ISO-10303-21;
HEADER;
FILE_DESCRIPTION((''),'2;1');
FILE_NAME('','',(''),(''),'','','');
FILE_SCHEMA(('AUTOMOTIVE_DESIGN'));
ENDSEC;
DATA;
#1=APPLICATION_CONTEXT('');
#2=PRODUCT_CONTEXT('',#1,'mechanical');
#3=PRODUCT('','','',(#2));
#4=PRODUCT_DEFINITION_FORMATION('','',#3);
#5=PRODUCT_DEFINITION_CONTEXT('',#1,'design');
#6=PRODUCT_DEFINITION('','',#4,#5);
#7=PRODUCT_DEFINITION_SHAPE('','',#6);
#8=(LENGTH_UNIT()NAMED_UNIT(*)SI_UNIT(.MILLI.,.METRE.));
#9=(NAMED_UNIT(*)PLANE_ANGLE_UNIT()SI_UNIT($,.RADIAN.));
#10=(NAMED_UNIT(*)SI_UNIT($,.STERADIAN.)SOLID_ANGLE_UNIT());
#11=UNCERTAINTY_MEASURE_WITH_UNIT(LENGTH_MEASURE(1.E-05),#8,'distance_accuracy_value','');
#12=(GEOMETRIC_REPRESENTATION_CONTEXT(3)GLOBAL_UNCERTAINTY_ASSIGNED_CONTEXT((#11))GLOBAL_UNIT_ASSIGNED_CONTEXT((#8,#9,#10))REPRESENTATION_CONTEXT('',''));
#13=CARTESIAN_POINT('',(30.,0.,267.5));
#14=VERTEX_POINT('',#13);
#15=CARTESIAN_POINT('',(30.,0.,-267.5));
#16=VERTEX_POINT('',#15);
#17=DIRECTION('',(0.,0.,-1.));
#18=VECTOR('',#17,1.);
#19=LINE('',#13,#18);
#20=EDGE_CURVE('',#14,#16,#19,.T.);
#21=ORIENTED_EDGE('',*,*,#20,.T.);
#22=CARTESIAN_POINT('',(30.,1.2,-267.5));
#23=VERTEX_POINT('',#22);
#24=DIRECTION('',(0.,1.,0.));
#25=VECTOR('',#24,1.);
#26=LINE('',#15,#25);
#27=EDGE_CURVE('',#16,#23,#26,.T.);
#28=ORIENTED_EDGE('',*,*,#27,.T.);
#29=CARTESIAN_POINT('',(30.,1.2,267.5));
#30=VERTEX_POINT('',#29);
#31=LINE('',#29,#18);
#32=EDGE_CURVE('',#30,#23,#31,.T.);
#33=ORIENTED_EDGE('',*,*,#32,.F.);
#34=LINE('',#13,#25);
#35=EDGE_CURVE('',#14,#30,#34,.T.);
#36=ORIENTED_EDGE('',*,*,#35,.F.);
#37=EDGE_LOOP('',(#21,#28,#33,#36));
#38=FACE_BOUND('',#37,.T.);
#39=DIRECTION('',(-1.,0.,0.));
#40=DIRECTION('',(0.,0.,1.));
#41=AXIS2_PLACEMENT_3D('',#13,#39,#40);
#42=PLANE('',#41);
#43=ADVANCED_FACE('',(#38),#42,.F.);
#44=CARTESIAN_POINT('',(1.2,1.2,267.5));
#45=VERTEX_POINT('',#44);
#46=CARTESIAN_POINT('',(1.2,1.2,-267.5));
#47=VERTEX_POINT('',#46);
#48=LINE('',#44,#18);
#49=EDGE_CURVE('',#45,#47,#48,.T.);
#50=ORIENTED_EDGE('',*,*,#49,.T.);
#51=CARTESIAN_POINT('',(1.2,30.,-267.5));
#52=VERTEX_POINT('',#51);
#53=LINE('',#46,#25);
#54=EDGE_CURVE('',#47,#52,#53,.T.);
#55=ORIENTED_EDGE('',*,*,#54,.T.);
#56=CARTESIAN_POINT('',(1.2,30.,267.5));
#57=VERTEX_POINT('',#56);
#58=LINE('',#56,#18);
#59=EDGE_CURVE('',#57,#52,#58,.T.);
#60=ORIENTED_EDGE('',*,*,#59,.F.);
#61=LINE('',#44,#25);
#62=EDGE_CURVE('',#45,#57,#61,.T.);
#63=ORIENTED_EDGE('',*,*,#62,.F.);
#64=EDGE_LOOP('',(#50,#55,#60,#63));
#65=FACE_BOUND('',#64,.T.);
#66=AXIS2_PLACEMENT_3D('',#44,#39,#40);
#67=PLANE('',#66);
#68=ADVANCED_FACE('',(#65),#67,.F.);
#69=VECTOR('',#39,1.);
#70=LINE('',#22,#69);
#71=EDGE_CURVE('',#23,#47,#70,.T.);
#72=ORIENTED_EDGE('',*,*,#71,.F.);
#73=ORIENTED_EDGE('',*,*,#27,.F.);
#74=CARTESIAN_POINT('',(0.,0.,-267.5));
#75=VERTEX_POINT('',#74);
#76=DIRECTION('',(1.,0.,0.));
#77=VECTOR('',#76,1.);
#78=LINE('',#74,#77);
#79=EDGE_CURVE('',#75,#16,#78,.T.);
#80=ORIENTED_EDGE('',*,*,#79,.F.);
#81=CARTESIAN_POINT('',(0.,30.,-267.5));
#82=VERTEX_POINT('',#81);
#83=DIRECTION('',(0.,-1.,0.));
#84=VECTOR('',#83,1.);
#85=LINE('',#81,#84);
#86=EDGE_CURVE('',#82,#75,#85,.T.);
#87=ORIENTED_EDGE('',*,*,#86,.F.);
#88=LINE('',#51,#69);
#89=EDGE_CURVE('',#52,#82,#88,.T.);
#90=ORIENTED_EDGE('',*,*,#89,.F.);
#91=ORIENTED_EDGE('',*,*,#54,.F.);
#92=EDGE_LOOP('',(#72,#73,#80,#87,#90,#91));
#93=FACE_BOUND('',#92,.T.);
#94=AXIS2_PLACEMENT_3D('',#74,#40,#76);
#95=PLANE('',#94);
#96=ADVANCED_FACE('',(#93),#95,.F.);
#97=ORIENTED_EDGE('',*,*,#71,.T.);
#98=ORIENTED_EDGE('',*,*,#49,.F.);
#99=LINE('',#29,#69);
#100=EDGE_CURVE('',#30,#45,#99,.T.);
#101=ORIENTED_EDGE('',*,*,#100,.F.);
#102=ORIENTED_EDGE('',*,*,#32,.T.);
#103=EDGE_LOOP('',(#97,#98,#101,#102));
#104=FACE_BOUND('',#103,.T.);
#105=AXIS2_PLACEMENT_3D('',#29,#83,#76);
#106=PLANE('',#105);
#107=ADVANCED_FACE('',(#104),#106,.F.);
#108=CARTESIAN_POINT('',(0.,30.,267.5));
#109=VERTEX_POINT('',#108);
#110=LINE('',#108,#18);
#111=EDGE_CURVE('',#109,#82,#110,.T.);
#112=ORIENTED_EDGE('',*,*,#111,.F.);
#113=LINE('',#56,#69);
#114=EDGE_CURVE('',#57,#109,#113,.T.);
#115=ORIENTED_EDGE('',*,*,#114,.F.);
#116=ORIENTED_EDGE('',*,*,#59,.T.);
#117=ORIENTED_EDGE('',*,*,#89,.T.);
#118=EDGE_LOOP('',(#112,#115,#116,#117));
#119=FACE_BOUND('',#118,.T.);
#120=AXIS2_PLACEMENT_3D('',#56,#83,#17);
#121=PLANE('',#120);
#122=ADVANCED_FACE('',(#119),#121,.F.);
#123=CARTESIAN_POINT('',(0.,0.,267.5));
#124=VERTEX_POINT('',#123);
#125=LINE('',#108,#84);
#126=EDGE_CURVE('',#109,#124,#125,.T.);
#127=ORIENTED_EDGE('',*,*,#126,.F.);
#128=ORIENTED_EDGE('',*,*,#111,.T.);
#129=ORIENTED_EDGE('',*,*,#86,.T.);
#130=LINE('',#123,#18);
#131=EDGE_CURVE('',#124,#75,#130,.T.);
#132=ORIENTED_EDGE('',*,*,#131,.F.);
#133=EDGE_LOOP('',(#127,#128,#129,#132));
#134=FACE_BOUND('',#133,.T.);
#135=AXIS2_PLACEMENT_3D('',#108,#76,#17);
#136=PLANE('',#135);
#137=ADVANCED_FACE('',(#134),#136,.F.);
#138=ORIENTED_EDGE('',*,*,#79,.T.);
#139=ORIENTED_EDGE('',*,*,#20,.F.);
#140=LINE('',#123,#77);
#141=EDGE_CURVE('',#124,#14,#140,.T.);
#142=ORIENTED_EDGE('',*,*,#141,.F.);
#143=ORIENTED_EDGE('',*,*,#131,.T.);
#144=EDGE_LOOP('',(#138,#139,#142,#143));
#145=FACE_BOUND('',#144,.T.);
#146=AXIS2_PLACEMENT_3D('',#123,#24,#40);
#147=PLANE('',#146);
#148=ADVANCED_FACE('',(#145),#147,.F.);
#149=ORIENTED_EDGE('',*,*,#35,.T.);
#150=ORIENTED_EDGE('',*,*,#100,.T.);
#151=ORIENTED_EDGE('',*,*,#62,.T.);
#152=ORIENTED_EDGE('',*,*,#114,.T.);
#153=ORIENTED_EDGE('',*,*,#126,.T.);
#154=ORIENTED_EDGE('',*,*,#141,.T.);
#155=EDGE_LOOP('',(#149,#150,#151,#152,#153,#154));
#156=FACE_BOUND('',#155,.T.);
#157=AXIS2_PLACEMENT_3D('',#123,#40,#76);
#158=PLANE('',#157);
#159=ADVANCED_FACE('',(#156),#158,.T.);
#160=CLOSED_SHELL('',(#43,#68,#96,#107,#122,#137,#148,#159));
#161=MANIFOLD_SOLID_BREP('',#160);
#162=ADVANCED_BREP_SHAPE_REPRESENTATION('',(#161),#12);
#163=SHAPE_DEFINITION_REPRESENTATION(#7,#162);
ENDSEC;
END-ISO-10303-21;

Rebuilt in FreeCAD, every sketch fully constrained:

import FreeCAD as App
import Part
import Sketcher

V = App.Vector
Q = App.Units.Quantity


def add_polygon(sketch, points):
    """Adds a closed chain of lines whose ends are joined by coincident constraints."""
    first, n = sketch.GeometryCount, len(points)
    for a, b in zip(points, points[1:] + points[:1]):
        sketch.addGeometry(Part.LineSegment(App.Vector(*a, 0), App.Vector(*b, 0)), False)
    for i in range(n):
        sketch.addConstraint(Sketcher.Constraint("Coincident", first + i, 2, first + (i + 1) % n, 1))

doc = App.newDocument("Part")
body = doc.addObject("PartDesign::Body", "Body")

sketch1 = body.newObject("Sketcher::SketchObject", "Sketch")
sketch1.AttachmentSupport = (doc.getObject("XY_Plane"), [""])
sketch1.MapMode = "FlatFace"
add_polygon(sketch1, [(0, 30), (0, 0), (30, 0), (30, 1.2), (1.2, 1.2), (1.2, 30)])
sketch1.addConstraint([
    Sketcher.Constraint("Vertical", 0),
    Sketcher.Constraint("Horizontal", 1),
    Sketcher.Constraint("Vertical", 2),
    Sketcher.Constraint("Horizontal", 3),
    Sketcher.Constraint("Vertical", 4),
    Sketcher.Constraint("Horizontal", 5),
    Sketcher.Constraint("Coincident", 0, 2, -1, 1),
    Sketcher.Constraint("Equal", 1, 0),
    Sketcher.Constraint("Equal", 5, 2),
    Sketcher.Constraint("DistanceX", 1, 1, 1, 2, Q("30 mm")),
    Sketcher.Constraint("DistanceX", 3, 2, 3, 1, Q("28.8 mm")),
])
pad1 = body.newObject("PartDesign::Pad", "Pad")
pad1.Profile = sketch1
pad1.Length = 535
pad1.Midplane = True

doc.recompute()
